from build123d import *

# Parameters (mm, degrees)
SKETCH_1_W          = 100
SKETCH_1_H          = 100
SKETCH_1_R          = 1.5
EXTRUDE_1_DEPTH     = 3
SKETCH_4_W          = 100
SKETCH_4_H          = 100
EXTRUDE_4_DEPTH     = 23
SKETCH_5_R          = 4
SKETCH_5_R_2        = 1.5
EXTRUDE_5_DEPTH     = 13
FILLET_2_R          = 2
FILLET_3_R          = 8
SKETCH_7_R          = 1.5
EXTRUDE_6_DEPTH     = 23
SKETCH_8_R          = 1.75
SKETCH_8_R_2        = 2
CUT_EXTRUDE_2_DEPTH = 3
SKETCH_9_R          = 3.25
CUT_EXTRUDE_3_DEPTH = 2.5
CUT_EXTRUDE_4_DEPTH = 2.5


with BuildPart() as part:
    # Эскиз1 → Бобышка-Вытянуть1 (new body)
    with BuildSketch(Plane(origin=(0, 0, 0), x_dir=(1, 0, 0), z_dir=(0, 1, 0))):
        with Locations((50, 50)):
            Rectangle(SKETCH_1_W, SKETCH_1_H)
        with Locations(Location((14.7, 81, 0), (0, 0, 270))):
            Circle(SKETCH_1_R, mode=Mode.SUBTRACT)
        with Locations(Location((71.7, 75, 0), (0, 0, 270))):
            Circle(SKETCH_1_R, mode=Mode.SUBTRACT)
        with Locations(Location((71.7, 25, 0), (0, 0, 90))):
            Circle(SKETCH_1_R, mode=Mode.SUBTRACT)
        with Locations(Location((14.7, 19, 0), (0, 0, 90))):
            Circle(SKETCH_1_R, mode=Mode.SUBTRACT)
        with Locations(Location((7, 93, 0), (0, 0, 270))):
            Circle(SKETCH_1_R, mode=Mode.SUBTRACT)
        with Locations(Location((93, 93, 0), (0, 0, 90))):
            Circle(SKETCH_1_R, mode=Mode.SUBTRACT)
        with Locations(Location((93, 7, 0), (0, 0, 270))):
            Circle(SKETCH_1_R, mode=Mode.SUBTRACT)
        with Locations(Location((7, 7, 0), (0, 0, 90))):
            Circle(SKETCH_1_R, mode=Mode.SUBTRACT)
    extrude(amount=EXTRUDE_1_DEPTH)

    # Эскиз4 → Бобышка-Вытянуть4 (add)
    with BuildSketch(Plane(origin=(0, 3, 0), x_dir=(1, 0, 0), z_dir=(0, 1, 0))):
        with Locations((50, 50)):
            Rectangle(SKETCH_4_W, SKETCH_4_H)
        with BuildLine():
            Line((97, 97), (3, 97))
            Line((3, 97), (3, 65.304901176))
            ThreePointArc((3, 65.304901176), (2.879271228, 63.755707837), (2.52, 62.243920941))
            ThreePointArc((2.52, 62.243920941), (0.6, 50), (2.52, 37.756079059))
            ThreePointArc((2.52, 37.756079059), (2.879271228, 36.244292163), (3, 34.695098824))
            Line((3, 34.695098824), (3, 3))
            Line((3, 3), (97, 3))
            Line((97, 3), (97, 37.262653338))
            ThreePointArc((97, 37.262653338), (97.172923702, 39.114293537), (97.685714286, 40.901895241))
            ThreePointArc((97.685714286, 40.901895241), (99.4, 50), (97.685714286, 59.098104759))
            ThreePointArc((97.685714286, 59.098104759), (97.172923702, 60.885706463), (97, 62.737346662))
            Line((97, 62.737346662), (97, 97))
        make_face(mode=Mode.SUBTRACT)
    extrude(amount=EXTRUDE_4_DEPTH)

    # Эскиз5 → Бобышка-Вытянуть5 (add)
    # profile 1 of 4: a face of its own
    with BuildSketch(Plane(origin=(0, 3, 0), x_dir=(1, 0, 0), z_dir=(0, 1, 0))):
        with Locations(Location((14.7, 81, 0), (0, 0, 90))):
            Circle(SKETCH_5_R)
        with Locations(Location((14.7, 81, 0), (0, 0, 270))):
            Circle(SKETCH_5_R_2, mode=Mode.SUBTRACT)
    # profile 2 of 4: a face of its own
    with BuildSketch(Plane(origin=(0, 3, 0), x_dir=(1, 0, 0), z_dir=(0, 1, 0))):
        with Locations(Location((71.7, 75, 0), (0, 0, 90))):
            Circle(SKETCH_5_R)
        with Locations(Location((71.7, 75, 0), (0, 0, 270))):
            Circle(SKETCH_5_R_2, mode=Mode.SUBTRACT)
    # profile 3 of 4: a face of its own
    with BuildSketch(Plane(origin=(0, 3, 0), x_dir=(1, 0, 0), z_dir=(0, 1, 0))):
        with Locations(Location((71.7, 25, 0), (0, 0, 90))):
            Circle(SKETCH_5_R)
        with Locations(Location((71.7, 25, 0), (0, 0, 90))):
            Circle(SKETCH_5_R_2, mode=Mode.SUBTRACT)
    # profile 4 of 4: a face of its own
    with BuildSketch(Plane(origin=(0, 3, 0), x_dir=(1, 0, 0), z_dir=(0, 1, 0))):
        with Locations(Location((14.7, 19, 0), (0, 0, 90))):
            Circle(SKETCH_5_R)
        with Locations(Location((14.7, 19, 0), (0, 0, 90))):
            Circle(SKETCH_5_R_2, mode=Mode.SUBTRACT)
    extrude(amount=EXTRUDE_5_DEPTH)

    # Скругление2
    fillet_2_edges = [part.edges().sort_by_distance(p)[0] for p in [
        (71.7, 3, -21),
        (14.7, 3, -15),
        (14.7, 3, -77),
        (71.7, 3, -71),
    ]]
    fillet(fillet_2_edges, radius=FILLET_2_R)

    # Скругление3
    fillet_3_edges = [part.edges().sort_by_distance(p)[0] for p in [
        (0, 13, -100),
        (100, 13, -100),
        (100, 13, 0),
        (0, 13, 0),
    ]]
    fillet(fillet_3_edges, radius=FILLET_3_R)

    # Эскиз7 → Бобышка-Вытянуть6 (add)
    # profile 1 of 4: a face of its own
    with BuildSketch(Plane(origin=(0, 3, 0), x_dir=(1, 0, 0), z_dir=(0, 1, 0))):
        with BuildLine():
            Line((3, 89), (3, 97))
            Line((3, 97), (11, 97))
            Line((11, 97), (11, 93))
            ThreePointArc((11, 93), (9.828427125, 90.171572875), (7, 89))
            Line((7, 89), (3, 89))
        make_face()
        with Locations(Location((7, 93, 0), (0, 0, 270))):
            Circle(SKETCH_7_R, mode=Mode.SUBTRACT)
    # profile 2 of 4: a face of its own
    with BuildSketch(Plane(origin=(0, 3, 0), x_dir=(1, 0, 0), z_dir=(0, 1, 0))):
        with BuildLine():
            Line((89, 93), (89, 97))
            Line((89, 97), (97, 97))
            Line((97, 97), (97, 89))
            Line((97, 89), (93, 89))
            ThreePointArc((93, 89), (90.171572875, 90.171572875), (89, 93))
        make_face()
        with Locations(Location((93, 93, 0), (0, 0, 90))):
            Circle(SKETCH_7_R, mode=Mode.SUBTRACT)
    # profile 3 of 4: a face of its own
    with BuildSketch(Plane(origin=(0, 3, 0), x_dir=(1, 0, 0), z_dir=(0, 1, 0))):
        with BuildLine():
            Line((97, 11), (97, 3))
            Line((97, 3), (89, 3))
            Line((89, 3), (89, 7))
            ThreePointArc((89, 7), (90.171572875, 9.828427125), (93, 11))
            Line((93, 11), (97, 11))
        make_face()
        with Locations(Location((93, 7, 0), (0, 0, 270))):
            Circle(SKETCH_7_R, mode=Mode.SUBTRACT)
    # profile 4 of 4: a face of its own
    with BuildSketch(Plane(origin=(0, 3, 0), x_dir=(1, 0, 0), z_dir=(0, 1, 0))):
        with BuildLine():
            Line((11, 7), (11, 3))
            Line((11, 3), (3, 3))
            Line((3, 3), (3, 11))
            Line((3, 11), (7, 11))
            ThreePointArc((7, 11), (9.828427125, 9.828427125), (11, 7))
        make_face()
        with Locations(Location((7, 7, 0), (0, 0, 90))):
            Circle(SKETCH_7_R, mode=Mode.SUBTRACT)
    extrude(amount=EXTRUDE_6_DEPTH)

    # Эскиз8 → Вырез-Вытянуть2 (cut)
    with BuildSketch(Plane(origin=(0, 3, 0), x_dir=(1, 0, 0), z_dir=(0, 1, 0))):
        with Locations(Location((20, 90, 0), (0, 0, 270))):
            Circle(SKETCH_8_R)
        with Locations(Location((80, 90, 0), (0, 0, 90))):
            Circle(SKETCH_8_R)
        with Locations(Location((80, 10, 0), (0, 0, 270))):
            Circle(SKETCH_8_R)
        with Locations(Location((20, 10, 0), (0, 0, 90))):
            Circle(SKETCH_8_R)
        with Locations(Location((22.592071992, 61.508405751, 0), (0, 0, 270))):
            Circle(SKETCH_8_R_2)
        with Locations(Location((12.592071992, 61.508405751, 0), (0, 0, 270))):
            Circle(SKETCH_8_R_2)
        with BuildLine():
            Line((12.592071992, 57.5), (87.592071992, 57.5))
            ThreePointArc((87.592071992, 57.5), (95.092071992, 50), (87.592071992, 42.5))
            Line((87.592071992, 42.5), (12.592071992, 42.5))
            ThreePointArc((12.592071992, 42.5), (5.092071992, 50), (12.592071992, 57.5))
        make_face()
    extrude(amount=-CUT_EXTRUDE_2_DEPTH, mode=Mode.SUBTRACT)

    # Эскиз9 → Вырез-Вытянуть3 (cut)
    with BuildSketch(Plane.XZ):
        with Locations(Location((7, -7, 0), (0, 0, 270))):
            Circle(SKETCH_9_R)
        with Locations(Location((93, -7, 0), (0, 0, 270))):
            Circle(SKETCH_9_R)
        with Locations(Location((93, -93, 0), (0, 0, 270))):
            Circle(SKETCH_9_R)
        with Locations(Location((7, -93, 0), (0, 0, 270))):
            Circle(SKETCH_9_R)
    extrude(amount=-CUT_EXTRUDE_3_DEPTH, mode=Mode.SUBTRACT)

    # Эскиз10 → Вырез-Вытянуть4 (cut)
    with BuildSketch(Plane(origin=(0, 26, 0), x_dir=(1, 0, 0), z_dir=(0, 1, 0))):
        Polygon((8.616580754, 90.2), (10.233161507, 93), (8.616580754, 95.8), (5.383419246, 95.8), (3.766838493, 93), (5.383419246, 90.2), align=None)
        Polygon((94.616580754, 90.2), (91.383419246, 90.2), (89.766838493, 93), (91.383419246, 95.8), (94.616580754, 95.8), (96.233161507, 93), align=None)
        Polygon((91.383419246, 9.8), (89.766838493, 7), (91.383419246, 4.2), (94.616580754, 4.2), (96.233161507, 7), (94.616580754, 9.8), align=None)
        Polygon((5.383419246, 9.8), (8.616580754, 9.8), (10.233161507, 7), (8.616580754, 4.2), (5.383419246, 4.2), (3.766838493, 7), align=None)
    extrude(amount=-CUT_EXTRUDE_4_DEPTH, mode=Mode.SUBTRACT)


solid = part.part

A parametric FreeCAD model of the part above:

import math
import FreeCAD as App
import Part
import Sketcher
from FreeCAD import Vector
Q = App.Units.Quantity


def edges_at(feature, points):
    """Names of the edges that pass closest to the given points."""
    edges = feature.Shape.Edges
    near = lambda p: min(range(len(edges)), key=lambda i: edges[i].distToShape(Part.Vertex(*p))[0])
    return sorted({f"Edge{near(p) + 1}" for p in points})

doc = App.newDocument("Part")
body = doc.addObject("PartDesign::Body", "Body")

# Sketch on XZ plane
sketch1 = body.newObject("Sketcher::SketchObject", "Sketch")
sketch1.AttachmentSupport = (doc.getObject("XZ_Plane"), [""])
sketch1.MapMode = "FlatFace"
sketch1.addGeometry([
    Part.LineSegment(Vector(0, -100, 0), Vector(0, 0, 0)),  # 0
    Part.LineSegment(Vector(0, 0, 0), Vector(100, 0, 0)),  # 1
    Part.LineSegment(Vector(100, 0, 0), Vector(100, -100, 0)),  # 2
    Part.LineSegment(Vector(100, -100, 0), Vector(0, -100, 0)),  # 3
    Part.Circle(Vector(7, -7, 0), Vector(0, 0, 1), 1.5),  # 4
    Part.Circle(Vector(14.7, -19, 0), Vector(0, 0, 1), 1.5),  # 5
    Part.Circle(Vector(71.7, -25, 0), Vector(0, 0, 1), 1.5),  # 6
    Part.Circle(Vector(93, -7, 0), Vector(0, 0, 1), 1.5),  # 7
    Part.Circle(Vector(14.7, -81, 0), Vector(0, 0, 1), 1.5),  # 8
    Part.Circle(Vector(7, -93, 0), Vector(0, 0, 1), 1.5),  # 9
    Part.Circle(Vector(71.7, -75, 0), Vector(0, 0, 1), 1.5),  # 10
    Part.Circle(Vector(93, -93, 0), Vector(0, 0, 1), 1.5),  # 11
], False)
sketch1.addConstraint([
    Sketcher.Constraint("Coincident", 0, 2, 1, 1),
    Sketcher.Constraint("Coincident", 1, 2, 2, 1),
    Sketcher.Constraint("Coincident", 2, 2, 3, 1),
    Sketcher.Constraint("Coincident", 3, 2, 0, 1),
    Sketcher.Constraint("Vertical", 0),
    Sketcher.Constraint("Horizontal", 1),
    Sketcher.Constraint("Vertical", 2),
    Sketcher.Constraint("Horizontal", 3),
    Sketcher.Constraint("Coincident", 0, 2, -1, 1),
    Sketcher.Constraint("Equal", 4, 5),
    Sketcher.Constraint("Equal", 5, 6),
    Sketcher.Constraint("Equal", 6, 7),
    Sketcher.Constraint("Equal", 7, 8),
    Sketcher.Constraint("Equal", 8, 9),
    Sketcher.Constraint("Equal", 9, 10),
    Sketcher.Constraint("Equal", 10, 11),
    Sketcher.Constraint("Horizontal", 4, 3, 7, 3),
    Sketcher.Constraint("Horizontal", 9, 3, 11, 3),
    Sketcher.Constraint("Vertical", 5, 3, 8, 3),
    Sketcher.Constraint("Vertical", 4, 3, 9, 3),
    Sketcher.Constraint("Vertical", 6, 3, 10, 3),
    Sketcher.Constraint("Vertical", 7, 3, 11, 3),
    Sketcher.Constraint("Equal", 3, 0),
    Sketcher.Constraint("Diameter", 4, 3.0),
    Sketcher.Constraint("DistanceX", 1, 1, 1, 2, 100.0),
    Sketcher.Constraint("DistanceX", -1, 1, 4, 3, 7.0),
    Sketcher.Constraint("DistanceY", 4, 3, -1, 1, 7.0),
    Sketcher.Constraint("DistanceY", 5, 3, -1, 1, 19.0),
    Sketcher.Constraint("DistanceY", 6, 3, -1, 1, 25.0),
    Sketcher.Constraint("DistanceX", -1, 1, 7, 3, 93.0),
    Sketcher.Constraint("DistanceY", 8, 3, -1, 1, 81.0),
    Sketcher.Constraint("DistanceY", 9, 3, -1, 1, 93.0),
    Sketcher.Constraint("DistanceY", 10, 3, -1, 1, 75.0),
    Sketcher.Constraint("DistanceX", 5, 3, 6, 3, 57.0),
    Sketcher.Constraint("DistanceX", -1, 1, 5, 3, 14.7),
])
pad1 = body.newObject("PartDesign::Pad", "Pad")
pad1.Profile = sketch1
pad1.Length = 3
pad1.Reversed = True

# Sketch on XZ plane
sketch2 = body.newObject("Sketcher::SketchObject", "Sketch001")
sketch2.AttachmentSupport = (doc.getObject("XZ_Plane"), [""])
sketch2.MapMode = "FlatFace"
sketch2.AttachmentOffset = App.Placement(Vector(0, 0, -3), App.Rotation())
sketch2.addGeometry([
    Part.LineSegment(Vector(0, -100, 0), Vector(0, 0, 0)),  # 0
    Part.LineSegment(Vector(0, 0, 0), Vector(100, 0, 0)),  # 1
    Part.LineSegment(Vector(100, 0, 0), Vector(100, -100, 0)),  # 2
    Part.LineSegment(Vector(100, -100, 0), Vector(0, -100, 0)),  # 3
    Part.LineSegment(Vector(3, -97, 0), Vector(97, -97, 0)),  # 4
    Part.LineSegment(Vector(97, -97, 0), Vector(97, -62.7, 0)),  # 5
    Part.ArcOfCircle(Part.Circle(Vector(107, -62.7, 0), Vector(0, 0, 1), 10), math.radians(159), math.radians(180)),  # 6
    Part.ArcOfCircle(Part.Circle(Vector(74.4, -50, 0), Vector(0, 0, 1), 25), math.radians(-21), math.radians(21)),  # 7
    Part.ArcOfCircle(Part.Circle(Vector(107, -37.3, 0), Vector(0, 0, 1), 10), math.radians(-180), math.radians(-159)),  # 8
    Part.LineSegment(Vector(97, -37.3, 0), Vector(97, -3, 0)),  # 9
    Part.LineSegment(Vector(97, -3, 0), Vector(3, -3, 0)),  # 10
    Part.LineSegment(Vector(3, -3, 0), Vector(3, -34.7, 0)),  # 11
    Part.ArcOfCircle(Part.Circle(Vector(-7, -34.7, 0), Vector(0, 0, 1), 10), math.radians(-17.82), math.radians(0)),  # 12
    Part.ArcOfCircle(Part.Circle(Vector(40.6, -50, 0), Vector(0, 0, 1), 40), math.radians(162), math.radians(198)),  # 13
    Part.ArcOfCircle(Part.Circle(Vector(-7, -65.3, 0), Vector(0, 0, 1), 10), math.radians(0), math.radians(17.82)),  # 14
    Part.LineSegment(Vector(3, -65.3, 0), Vector(3, -97, 0)),  # 15
], False)
sketch2.addConstraint([
    Sketcher.Constraint("Coincident", 0, 2, 1, 1),
    Sketcher.Constraint("Coincident", 1, 2, 2, 1),
    Sketcher.Constraint("Coincident", 2, 2, 3, 1),
    Sketcher.Constraint("Coincident", 3, 2, 0, 1),
    Sketcher.Constraint("Coincident", 4, 2, 5, 1),
    Sketcher.Constraint("Tangent", 5, 2, 6, 2),
    Sketcher.Constraint("Tangent", 6, 1, 7, 1),
    Sketcher.Constraint("Tangent", 7, 2, 8, 2),
    Sketcher.Constraint("Tangent", 8, 1, 9, 1),
    Sketcher.Constraint("Coincident", 9, 2, 10, 1),
    Sketcher.Constraint("Coincident", 10, 2, 11, 1),
    Sketcher.Constraint("Tangent", 11, 2, 12, 2),
    Sketcher.Constraint("Tangent", 12, 1, 13, 1),
    Sketcher.Constraint("Tangent", 13, 2, 14, 2),
    Sketcher.Constraint("Tangent", 14, 1, 15, 1),
    Sketcher.Constraint("Coincident", 15, 2, 4, 1),
    Sketcher.Constraint("Vertical", 0),
    Sketcher.Constraint("Horizontal", 1),
    Sketcher.Constraint("Vertical", 2),
    Sketcher.Constraint("Horizontal", 3),
    Sketcher.Constraint("Horizontal", 4),
    Sketcher.Constraint("Vertical", 5),
    Sketcher.Constraint("Vertical", 9),
    Sketcher.Constraint("Horizontal", 10),
    Sketcher.Constraint("Vertical", 11),
    Sketcher.Constraint("Vertical", 15),
    Sketcher.Constraint("Coincident", 0, 2, -1, 1),
    Sketcher.Constraint("Equal", 6, 8),
    Sketcher.Constraint("Equal", 8, 12),
    Sketcher.Constraint("Equal", 12, 14),
    Sketcher.Constraint("Horizontal", 7, 3, 13, 3),
    Sketcher.Constraint("Vertical", 6, 3, 8, 3),
    Sketcher.Constraint("Vertical", 12, 3, 14, 3),
    Sketcher.Constraint("Equal", 3, 0),
    Sketcher.Constraint("Equal", 5, 9),
    Sketcher.Constraint("Radius", 6, 10.0),
    Sketcher.Constraint("Radius", 7, 25.0),
    Sketcher.Constraint("Radius", 13, 40.0),
    Sketcher.Constraint("DistanceX", 1, 1, 1, 2, 100.0),
    Sketcher.Constraint("DistanceX", 4, 1, 4, 2, 94.0),
    Sketcher.Constraint("DistanceX", -1, 1, 6, 3, 107.0),
    Sketcher.Constraint("DistanceY", 7, 3, -1, 1, 50.0),
    Sketcher.Constraint("DistanceY", 4, 2, -1, 1, 97.0),
    Sketcher.Constraint("DistanceX", -1, 1, 7, 3, 74.4),
    Sketcher.Constraint("DistanceX", -1, 1, 13, 3, 40.6),
])
pad2 = body.newObject("PartDesign::Pad", "Pad001")
pad2.Profile = sketch2
pad2.Length = 23
pad2.Reversed = True

# Sketch on XZ plane
sketch3 = body.newObject("Sketcher::SketchObject", "Sketch002")
sketch3.AttachmentSupport = (doc.getObject("XZ_Plane"), [""])
sketch3.MapMode = "FlatFace"
sketch3.AttachmentOffset = App.Placement(Vector(0, 0, -3), App.Rotation())
sketch3.addGeometry([
    Part.Circle(Vector(14.7, -81, 0), Vector(0, 0, 1), 4),  # 0
    Part.Circle(Vector(14.7, -81, 0), Vector(0, 0, 1), 1.5),  # 1
    Part.Circle(Vector(71.7, -75, 0), Vector(0, 0, 1), 4),  # 2
    Part.Circle(Vector(71.7, -75, 0), Vector(0, 0, 1), 1.5),  # 3
    Part.Circle(Vector(71.7, -25, 0), Vector(0, 0, 1), 4),  # 4
    Part.Circle(Vector(71.7, -25, 0), Vector(0, 0, 1), 1.5),  # 5
    Part.Circle(Vector(14.7, -19, 0), Vector(0, 0, 1), 4),  # 6
    Part.Circle(Vector(14.7, -19, 0), Vector(0, 0, 1), 1.5),  # 7
], False)
sketch3.addConstraint([
    Sketcher.Constraint("Coincident", 1, 3, 0, 3),
    Sketcher.Constraint("Coincident", 3, 3, 2, 3),
    Sketcher.Constraint("Coincident", 5, 3, 4, 3),
    Sketcher.Constraint("Coincident", 7, 3, 6, 3),
    Sketcher.Constraint("Equal", 0, 2),
    Sketcher.Constraint("Equal", 1, 3),
    Sketcher.Constraint("Equal", 2, 4),
    Sketcher.Constraint("Equal", 3, 5),
    Sketcher.Constraint("Equal", 4, 6),
    Sketcher.Constraint("Equal", 5, 7),
    Sketcher.Constraint("Vertical", 3, 3, 4, 3),
    Sketcher.Constraint("Vertical", 1, 3, 6, 3),
    Sketcher.Constraint("Diameter", 0, 8.0),
    Sketcher.Constraint("Diameter", 1, 3.0),
    Sketcher.Constraint("DistanceY", 0, 3, -1, 1, 81.0),
    Sketcher.Constraint("DistanceY", 2, 3, -1, 1, 75.0),
    Sketcher.Constraint("DistanceY", 4, 3, -1, 1, 25.0),
    Sketcher.Constraint("DistanceY", 6, 3, -1, 1, 19.0),
    Sketcher.Constraint("DistanceX", 0, 3, 2, 3, 57.0),
    Sketcher.Constraint("DistanceX", -1, 1, 0, 3, 14.7),
])
pad3 = body.newObject("PartDesign::Pad", "Pad002")
pad3.Profile = sketch3
pad3.Length = 13
pad3.Reversed = True
doc.recompute()

fillet = body.newObject("PartDesign::Fillet", "Fillet")
fillet.Base = (pad3, edges_at(pad3, [
    (71.7, 3, -21),
    (14.7, 3, -15),
    (14.7, 3, -77),
    (71.7, 3, -71),
]))
fillet.Radius = 2
doc.recompute()

fillet2 = body.newObject("PartDesign::Fillet", "Fillet001")
fillet2.Base = (fillet, edges_at(fillet, [
    (0, 13, -100),
    (100, 13, -100),
    (100, 13, 0),
    (0, 13, 0),
]))
fillet2.Radius = 8

# Sketch on XZ plane
sketch4 = body.newObject("Sketcher::SketchObject", "Sketch003")
sketch4.AttachmentSupport = (doc.getObject("XZ_Plane"), [""])
sketch4.MapMode = "FlatFace"
sketch4.AttachmentOffset = App.Placement(Vector(0, 0, -3), App.Rotation())
sketch4.addGeometry([
    Part.LineSegment(Vector(3, -97, 0), Vector(3, -89, 0)),  # 0
    Part.LineSegment(Vector(3, -89, 0), Vector(7, -89, 0)),  # 1
    Part.ArcOfCircle(Part.Circle(Vector(7, -93, 0), Vector(0, 0, 1), 4), math.radians(0), math.radians(90)),  # 2
    Part.LineSegment(Vector(11, -93, 0), Vector(11, -97, 0)),  # 3
    Part.LineSegment(Vector(11, -97, 0), Vector(3, -97, 0)),  # 4
    Part.Circle(Vector(7, -93, 0), Vector(0, 0, 1), 1.5),  # 5
    Part.LineSegment(Vector(89, -97, 0), Vector(89, -93, 0)),  # 6
    Part.ArcOfCircle(Part.Circle(Vector(93, -93, 0), Vector(0, 0, 1), 4), math.radians(90), math.radians(180)),  # 7
    Part.LineSegment(Vector(93, -89, 0), Vector(97, -89, 0)),  # 8
    Part.LineSegment(Vector(97, -89, 0), Vector(97, -97, 0)),  # 9
    Part.LineSegment(Vector(97, -97, 0), Vector(89, -97, 0)),  # 10
    Part.Circle(Vector(93, -93, 0), Vector(0, 0, 1), 1.5),  # 11
    Part.LineSegment(Vector(97, -3, 0), Vector(97, -11, 0)),  # 12
    Part.LineSegment(Vector(97, -11, 0), Vector(93, -11, 0)),  # 13
    Part.ArcOfCircle(Part.Circle(Vector(93, -7, 0), Vector(0, 0, 1), 4), math.radians(180), math.radians(270)),  # 14
    Part.LineSegment(Vector(89, -7, 0), Vector(89, -3, 0)),  # 15
    Part.LineSegment(Vector(89, -3, 0), Vector(97, -3, 0)),  # 16
    Part.Circle(Vector(93, -7, 0), Vector(0, 0, 1), 1.5),  # 17
    Part.LineSegment(Vector(11, -3, 0), Vector(11, -7, 0)),  # 18
    Part.ArcOfCircle(Part.Circle(Vector(7, -7, 0), Vector(0, 0, 1), 4), math.radians(-90), math.radians(0)),  # 19
    Part.LineSegment(Vector(7, -11, 0), Vector(3, -11, 0)),  # 20
    Part.LineSegment(Vector(3, -11, 0), Vector(3, -3, 0)),  # 21
    Part.LineSegment(Vector(3, -3, 0), Vector(11, -3, 0)),  # 22
    Part.Circle(Vector(7, -7, 0), Vector(0, 0, 1), 1.5),  # 23
], False)
sketch4.addConstraint([
    Sketcher.Constraint("Coincident", 0, 2, 1, 1),
    Sketcher.Constraint("Tangent", 1, 2, 2, 2),
    Sketcher.Constraint("Tangent", 2, 1, 3, 1),
    Sketcher.Constraint("Coincident", 3, 2, 4, 1),
    Sketcher.Constraint("Coincident", 4, 2, 0, 1),
    Sketcher.Constraint("Tangent", 6, 2, 7, 2),
    Sketcher.Constraint("Tangent", 7, 1, 8, 1),
    Sketcher.Constraint("Coincident", 8, 2, 9, 1),
    Sketcher.Constraint("Coincident", 9, 2, 10, 1),
    Sketcher.Constraint("Coincident", 10, 2, 6, 1),
    Sketcher.Constraint("Coincident", 12, 2, 13, 1),
    Sketcher.Constraint("Tangent", 13, 2, 14, 2),
    Sketcher.Constraint("Tangent", 14, 1, 15, 1),
    Sketcher.Constraint("Coincident", 15, 2, 16, 1),
    Sketcher.Constraint("Coincident", 16, 2, 12, 1),
    Sketcher.Constraint("Tangent", 18, 2, 19, 2),
    Sketcher.Constraint("Tangent", 19, 1, 20, 1),
    Sketcher.Constraint("Coincident", 20, 2, 21, 1),
    Sketcher.Constraint("Coincident", 21, 2, 22, 1),
    Sketcher.Constraint("Coincident", 22, 2, 18, 1),
    Sketcher.Constraint("Vertical", 0),
    Sketcher.Constraint("Horizontal", 1),
    Sketcher.Constraint("Vertical", 3),
    Sketcher.Constraint("Horizontal", 4),
    Sketcher.Constraint("Vertical", 6),
    Sketcher.Constraint("Horizontal", 8),
    Sketcher.Constraint("Vertical", 9),
    Sketcher.Constraint("Horizontal", 10),
    Sketcher.Constraint("Vertical", 12),
    Sketcher.Constraint("Horizontal", 13),
    Sketcher.Constraint("Vertical", 15),
    Sketcher.Constraint("Horizontal", 16),
    Sketcher.Constraint("Vertical", 18),
    Sketcher.Constraint("Horizontal", 20),
    Sketcher.Constraint("Vertical", 21),
    Sketcher.Constraint("Horizontal", 22),
    Sketcher.Constraint("Coincident", 5, 3, 2, 3),
    Sketcher.Constraint("Coincident", 11, 3, 7, 3),
    Sketcher.Constraint("Coincident", 17, 3, 14, 3),
    Sketcher.Constraint("Coincident", 23, 3, 19, 3),
    Sketcher.Constraint("Equal", 2, 7),
    Sketcher.Constraint("Equal", 5, 11),
    Sketcher.Constraint("Equal", 7, 14),
    Sketcher.Constraint("Equal", 11, 17),
    Sketcher.Constraint("Equal", 14, 19),
    Sketcher.Constraint("Equal", 17, 23),
    Sketcher.Constraint("Horizontal", 5, 3, 7, 3),
    Sketcher.Constraint("Horizontal", 17, 3, 19, 3),
    Sketcher.Constraint("Horizontal", 4, 2, 9, 2),
    Sketcher.Constraint("Horizontal", 16, 2, 21, 2),
    Sketcher.Constraint("Vertical", 11, 3, 14, 3),
    Sketcher.Constraint("Vertical", 5, 3, 19, 3),
    Sketcher.Constraint("Vertical", 9, 2, 12, 2),
    Sketcher.Constraint("Vertical", 4, 2, 20, 2),
    Sketcher.Constraint("Equal", 1, 8),
    Sketcher.Constraint("Equal", 22, 0),
    Sketcher.Constraint("Equal", 9, 12),
    Sketcher.Constraint("Diameter", 5, 3.0),
    Sketcher.Constraint("Radius", 2, 4.0),
    Sketcher.Constraint("DistanceX", 1, 1, 1, 2, 4.0),
    Sketcher.Constraint("DistanceX", -1, 1, 2, 3, 7.0),
    Sketcher.Constraint("DistanceY", 2, 3, -1, 1, 93.0),
    Sketcher.Constraint("DistanceX", -1, 1, 7, 3, 93.0),
    Sketcher.Constraint("DistanceY", 14, 3, -1, 1, 7.0),
])
pad4 = body.newObject("PartDesign::Pad", "Pad003")
pad4.Profile = sketch4
pad4.Length = 23
pad4.Reversed = True

# Sketch on XZ plane
sketch5 = body.newObject("Sketcher::SketchObject", "Sketch004")
sketch5.AttachmentSupport = (doc.getObject("XZ_Plane"), [""])
sketch5.MapMode = "FlatFace"
sketch5.AttachmentOffset = App.Placement(Vector(0, 0, -3), App.Rotation())
sketch5.addGeometry([
    Part.Circle(Vector(20, -90, 0), Vector(0, 0, 1), 1.8),  # 0
    Part.Circle(Vector(80, -90, 0), Vector(0, 0, 1), 1.8),  # 1
    Part.Circle(Vector(80, -10, 0), Vector(0, 0, 1), 1.8),  # 2
    Part.Circle(Vector(20, -10, 0), Vector(0, 0, 1), 1.8),  # 3
    Part.Circle(Vector(22.6, -61.5, 0), Vector(0, 0, 1), 2),  # 4
    Part.Circle(Vector(12.6, -61.5, 0), Vector(0, 0, 1), 2),  # 5
    Part.LineSegment(Vector(87.6, -57.5, 0), Vector(12.6, -57.5, 0)),  # 6
    Part.ArcOfCircle(Part.Circle(Vector(12.6, -50, 0), Vector(0, 0, 1), 7.5), math.radians(90), math.radians(270)),  # 7
    Part.LineSegment(Vector(12.6, -42.5, 0), Vector(87.6, -42.5, 0)),  # 8
    Part.ArcOfCircle(Part.Circle(Vector(87.6, -50, 0), Vector(0, 0, 1), 7.5), math.radians(-90), math.radians(90)),  # 9
], False)
sketch5.addConstraint([
    Sketcher.Constraint("Tangent", 6, 2, 7, 2),
    Sketcher.Constraint("Tangent", 7, 1, 8, 1),
    Sketcher.Constraint("Tangent", 8, 2, 9, 2),
    Sketcher.Constraint("Tangent", 9, 1, 6, 1),
    Sketcher.Constraint("Horizontal", 6),
    Sketcher.Constraint("Horizontal", 8),
    Sketcher.Constraint("Equal", 0, 1),
    Sketcher.Constraint("Equal", 1, 2),
    Sketcher.Constraint("Equal", 2, 3),
    Sketcher.Constraint("Equal", 4, 5),
    Sketcher.Constraint("Horizontal", 0, 3, 1, 3),
    Sketcher.Constraint("Horizontal", 2, 3, 3, 3),
    Sketcher.Constraint("Horizontal", 4, 3, 5, 3),
    Sketcher.Constraint("Vertical", 1, 3, 2, 3),
    Sketcher.Constraint("Vertical", 0, 3, 3, 3),
    Sketcher.Constraint("Vertical", 5, 3, 7, 3),
    Sketcher.Constraint("Diameter", 4, 4.0),
    Sketcher.Constraint("Diameter", 0, 3.5),
    Sketcher.Constraint("Radius", 7, 7.5),
    Sketcher.Constraint("DistanceX", 6, 2, 6, 1, 75.0),
    Sketcher.Constraint("DistanceX", -1, 1, 0, 3, 20.0),
    Sketcher.Constraint("DistanceY", 0, 3, -1, 1, 90.0),
    Sketcher.Constraint("DistanceX", -1, 1, 1, 3, 80.0),
    Sketcher.Constraint("DistanceY", 2, 3, -1, 1, 10.0),
    Sketcher.Constraint("DistanceY", 7, 3, -1, 1, 50.0),
    Sketcher.Constraint("DistanceX", 5, 3, 4, 3, 10.0),
    Sketcher.Constraint("DistanceX", -1, 1, 4, 3, 22.592072),
    Sketcher.Constraint("DistanceY", 4, 3, -1, 1, 61.508406),
])
pocket1 = body.newObject("PartDesign::Pocket", "Pocket")
pocket1.Profile = sketch5
pocket1.Length = 3
pocket1.Reversed = True

# Sketch on XZ plane
sketch6 = body.newObject("Sketcher::SketchObject", "Sketch005")
sketch6.AttachmentSupport = (doc.getObject("XZ_Plane"), [""])
sketch6.MapMode = "FlatFace"
sketch6.addGeometry([
    Part.Circle(Vector(7, -7, 0), Vector(0, 0, 1), 3.2),
    Part.Circle(Vector(93, -7, 0), Vector(0, 0, 1), 3.2),
    Part.Circle(Vector(93, -93, 0), Vector(0, 0, 1), 3.2),
    Part.Circle(Vector(7, -93, 0), Vector(0, 0, 1), 3.2),
], False)
sketch6.addConstraint([
    Sketcher.Constraint("Equal", 0, 1),
    Sketcher.Constraint("Equal", 1, 2),
    Sketcher.Constraint("Equal", 2, 3),
    Sketcher.Constraint("Horizontal", 0, 3, 1, 3),
    Sketcher.Constraint("Horizontal", 2, 3, 3, 3),
    Sketcher.Constraint("Vertical", 1, 3, 2, 3),
    Sketcher.Constraint("Vertical", 0, 3, 3, 3),
    Sketcher.Constraint("Diameter", 0, 6.5),
    Sketcher.Constraint("DistanceX", -1, 1, 0, 3, 7.0),
    Sketcher.Constraint("DistanceY", 0, 3, -1, 1, 7.0),
    Sketcher.Constraint("DistanceX", -1, 1, 1, 3, 93.0),
    Sketcher.Constraint("DistanceY", 2, 3, -1, 1, 93.0),
])
pocket2 = body.newObject("PartDesign::Pocket", "Pocket001")
pocket2.Profile = sketch6
pocket2.Length = 2.5

# Sketch on XZ plane
sketch7 = body.newObject("Sketcher::SketchObject", "Sketch006")
sketch7.AttachmentSupport = (doc.getObject("XZ_Plane"), [""])
sketch7.MapMode = "FlatFace"
sketch7.AttachmentOffset = App.Placement(Vector(0, 0, -26), App.Rotation())
sketch7.addGeometry([
    Part.LineSegment(Vector(8.6, -90.2, 0), Vector(10.2, -93, 0)),  # 0
    Part.LineSegment(Vector(10.2, -93, 0), Vector(8.6, -95.8, 0)),  # 1
    Part.LineSegment(Vector(8.6, -95.8, 0), Vector(5.4, -95.8, 0)),  # 2
    Part.LineSegment(Vector(5.4, -95.8, 0), Vector(3.8, -93, 0)),  # 3
    Part.LineSegment(Vector(3.8, -93, 0), Vector(5.4, -90.2, 0)),  # 4
    Part.LineSegment(Vector(5.4, -90.2, 0), Vector(8.6, -90.2, 0)),  # 5
    Part.LineSegment(Vector(91.4, -90.2, 0), Vector(94.6, -90.2, 0)),  # 6
    Part.LineSegment(Vector(94.6, -90.2, 0), Vector(96.2, -93, 0)),  # 7
    Part.LineSegment(Vector(96.2, -93, 0), Vector(94.6, -95.8, 0)),  # 8
    Part.LineSegment(Vector(94.6, -95.8, 0), Vector(91.4, -95.8, 0)),  # 9
    Part.LineSegment(Vector(91.4, -95.8, 0), Vector(89.8, -93, 0)),  # 10
    Part.LineSegment(Vector(89.8, -93, 0), Vector(91.4, -90.2, 0)),  # 11
    Part.LineSegment(Vector(91.4, -9.8, 0), Vector(89.8, -7, 0)),  # 12
    Part.LineSegment(Vector(89.8, -7, 0), Vector(91.4, -4.2, 0)),  # 13
    Part.LineSegment(Vector(91.4, -4.2, 0), Vector(94.6, -4.2, 0)),  # 14
    Part.LineSegment(Vector(94.6, -4.2, 0), Vector(96.2, -7, 0)),  # 15
    Part.LineSegment(Vector(96.2, -7, 0), Vector(94.6, -9.8, 0)),  # 16
    Part.LineSegment(Vector(94.6, -9.8, 0), Vector(91.4, -9.8, 0)),  # 17
    Part.LineSegment(Vector(8.6, -9.8, 0), Vector(5.4, -9.8, 0)),  # 18
    Part.LineSegment(Vector(5.4, -9.8, 0), Vector(3.8, -7, 0)),  # 19
    Part.LineSegment(Vector(3.8, -7, 0), Vector(5.4, -4.2, 0)),  # 20
    Part.LineSegment(Vector(5.4, -4.2, 0), Vector(8.6, -4.2, 0)),  # 21
    Part.LineSegment(Vector(8.6, -4.2, 0), Vector(10.2, -7, 0)),  # 22
    Part.LineSegment(Vector(10.2, -7, 0), Vector(8.6, -9.8, 0)),  # 23
], False)
sketch7.addConstraint([
    Sketcher.Constraint("Coincident", 0, 2, 1, 1),
    Sketcher.Constraint("Coincident", 1, 2, 2, 1),
    Sketcher.Constraint("Coincident", 2, 2, 3, 1),
    Sketcher.Constraint("Coincident", 3, 2, 4, 1),
    Sketcher.Constraint("Coincident", 4, 2, 5, 1),
    Sketcher.Constraint("Coincident", 5, 2, 0, 1),
    Sketcher.Constraint("Coincident", 6, 2, 7, 1),
    Sketcher.Constraint("Coincident", 7, 2, 8, 1),
    Sketcher.Constraint("Coincident", 8, 2, 9, 1),
    Sketcher.Constraint("Coincident", 9, 2, 10, 1),
    Sketcher.Constraint("Coincident", 10, 2, 11, 1),
    Sketcher.Constraint("Coincident", 11, 2, 6, 1),
    Sketcher.Constraint("Coincident", 12, 2, 13, 1),
    Sketcher.Constraint("Coincident", 13, 2, 14, 1),
    Sketcher.Constraint("Coincident", 14, 2, 15, 1),
    Sketcher.Constraint("Coincident", 15, 2, 16, 1),
    Sketcher.Constraint("Coincident", 16, 2, 17, 1),
    Sketcher.Constraint("Coincident", 17, 2, 12, 1),
    Sketcher.Constraint("Coincident", 18, 2, 19, 1),
    Sketcher.Constraint("Coincident", 19, 2, 20, 1),
    Sketcher.Constraint("Coincident", 20, 2, 21, 1),
    Sketcher.Constraint("Coincident", 21, 2, 22, 1),
    Sketcher.Constraint("Coincident", 22, 2, 23, 1),
    Sketcher.Constraint("Coincident", 23, 2, 18, 1),
    Sketcher.Constraint("Horizontal", 2),
    Sketcher.Constraint("Horizontal", 5),
    Sketcher.Constraint("Horizontal", 6),
    Sketcher.Constraint("Horizontal", 9),
    Sketcher.Constraint("Horizontal", 14),
    Sketcher.Constraint("Horizontal", 17),
    Sketcher.Constraint("Horizontal", 18),
    Sketcher.Constraint("Horizontal", 21),
    Sketcher.Constraint("Parallel", 0, 3),
    Sketcher.Constraint("Parallel", 1, 4),
    Sketcher.Constraint("Parallel", 3, 7),
    Sketcher.Constraint("Parallel", 4, 8),
    Sketcher.Constraint("Parallel", 7, 10),
    Sketcher.Constraint("Parallel", 8, 11),
    Sketcher.Constraint("Parallel", 10, 12),
    Sketcher.Constraint("Parallel", 11, 13),
    Sketcher.Constraint("Parallel", 12, 15),
    Sketcher.Constraint("Parallel", 13, 16),
    Sketcher.Constraint("Parallel", 15, 19),
    Sketcher.Constraint("Parallel", 16, 20),
    Sketcher.Constraint("Parallel", 19, 22),
    Sketcher.Constraint("Parallel", 20, 23),
    Sketcher.Constraint("Horizontal", 0, 2, 3, 2),
    Sketcher.Constraint("Horizontal", 5, 2, 6, 2),
    Sketcher.Constraint("Horizontal", 3, 2, 7, 2),
    Sketcher.Constraint("Horizontal", 2, 2, 8, 2),
    Sketcher.Constraint("Horizontal", 7, 2, 10, 2),
    Sketcher.Constraint("Horizontal", 12, 2, 15, 2),
    Sketcher.Constraint("Horizontal", 17, 2, 18, 2),
    Sketcher.Constraint("Horizontal", 15, 2, 19, 2),
    Sketcher.Constraint("Horizontal", 14, 2, 20, 2),
    Sketcher.Constraint("Horizontal", 19, 2, 22, 2),
    Sketcher.Constraint("Vertical", 2, 2, 4, 2),
    Sketcher.Constraint("Vertical", 1, 2, 5, 2),
    Sketcher.Constraint("Vertical", 10, 2, 12, 2),
    Sketcher.Constraint("Vertical", 11, 2, 13, 2),
    Sketcher.Constraint("Vertical", 8, 2, 14, 2),
    Sketcher.Constraint("Vertical", 14, 2, 16, 2),
    Sketcher.Constraint("Vertical", 4, 2, 18, 2),
    Sketcher.Constraint("Vertical", 5, 2, 21, 2),
    Sketcher.Constraint("Equal", 5, 6),
    Sketcher.Constraint("Angle", 0, Q("-60 deg")),
    Sketcher.Constraint("DistanceY", 0, 2, -1, 1, 93.0),
    Sketcher.Constraint("DistanceY", 12, 2, -1, 1, 7.0),
    Sketcher.Constraint("DistanceX", 5, 2, 6, 2, 86.0),
    Sketcher.Constraint("DistanceY", 1, 2, -1, 1, 95.8),
    Sketcher.Constraint("DistanceX", 2, 2, 2, 1, 3.233162),
    Sketcher.Constraint("DistanceX", -1, 1, 0, 2, 10.233162),
])
pocket3 = body.newObject("PartDesign::Pocket", "Pocket002")
pocket3.Profile = sketch7
pocket3.Length = 2.5
pocket3.Reversed = True

doc.recompute()
